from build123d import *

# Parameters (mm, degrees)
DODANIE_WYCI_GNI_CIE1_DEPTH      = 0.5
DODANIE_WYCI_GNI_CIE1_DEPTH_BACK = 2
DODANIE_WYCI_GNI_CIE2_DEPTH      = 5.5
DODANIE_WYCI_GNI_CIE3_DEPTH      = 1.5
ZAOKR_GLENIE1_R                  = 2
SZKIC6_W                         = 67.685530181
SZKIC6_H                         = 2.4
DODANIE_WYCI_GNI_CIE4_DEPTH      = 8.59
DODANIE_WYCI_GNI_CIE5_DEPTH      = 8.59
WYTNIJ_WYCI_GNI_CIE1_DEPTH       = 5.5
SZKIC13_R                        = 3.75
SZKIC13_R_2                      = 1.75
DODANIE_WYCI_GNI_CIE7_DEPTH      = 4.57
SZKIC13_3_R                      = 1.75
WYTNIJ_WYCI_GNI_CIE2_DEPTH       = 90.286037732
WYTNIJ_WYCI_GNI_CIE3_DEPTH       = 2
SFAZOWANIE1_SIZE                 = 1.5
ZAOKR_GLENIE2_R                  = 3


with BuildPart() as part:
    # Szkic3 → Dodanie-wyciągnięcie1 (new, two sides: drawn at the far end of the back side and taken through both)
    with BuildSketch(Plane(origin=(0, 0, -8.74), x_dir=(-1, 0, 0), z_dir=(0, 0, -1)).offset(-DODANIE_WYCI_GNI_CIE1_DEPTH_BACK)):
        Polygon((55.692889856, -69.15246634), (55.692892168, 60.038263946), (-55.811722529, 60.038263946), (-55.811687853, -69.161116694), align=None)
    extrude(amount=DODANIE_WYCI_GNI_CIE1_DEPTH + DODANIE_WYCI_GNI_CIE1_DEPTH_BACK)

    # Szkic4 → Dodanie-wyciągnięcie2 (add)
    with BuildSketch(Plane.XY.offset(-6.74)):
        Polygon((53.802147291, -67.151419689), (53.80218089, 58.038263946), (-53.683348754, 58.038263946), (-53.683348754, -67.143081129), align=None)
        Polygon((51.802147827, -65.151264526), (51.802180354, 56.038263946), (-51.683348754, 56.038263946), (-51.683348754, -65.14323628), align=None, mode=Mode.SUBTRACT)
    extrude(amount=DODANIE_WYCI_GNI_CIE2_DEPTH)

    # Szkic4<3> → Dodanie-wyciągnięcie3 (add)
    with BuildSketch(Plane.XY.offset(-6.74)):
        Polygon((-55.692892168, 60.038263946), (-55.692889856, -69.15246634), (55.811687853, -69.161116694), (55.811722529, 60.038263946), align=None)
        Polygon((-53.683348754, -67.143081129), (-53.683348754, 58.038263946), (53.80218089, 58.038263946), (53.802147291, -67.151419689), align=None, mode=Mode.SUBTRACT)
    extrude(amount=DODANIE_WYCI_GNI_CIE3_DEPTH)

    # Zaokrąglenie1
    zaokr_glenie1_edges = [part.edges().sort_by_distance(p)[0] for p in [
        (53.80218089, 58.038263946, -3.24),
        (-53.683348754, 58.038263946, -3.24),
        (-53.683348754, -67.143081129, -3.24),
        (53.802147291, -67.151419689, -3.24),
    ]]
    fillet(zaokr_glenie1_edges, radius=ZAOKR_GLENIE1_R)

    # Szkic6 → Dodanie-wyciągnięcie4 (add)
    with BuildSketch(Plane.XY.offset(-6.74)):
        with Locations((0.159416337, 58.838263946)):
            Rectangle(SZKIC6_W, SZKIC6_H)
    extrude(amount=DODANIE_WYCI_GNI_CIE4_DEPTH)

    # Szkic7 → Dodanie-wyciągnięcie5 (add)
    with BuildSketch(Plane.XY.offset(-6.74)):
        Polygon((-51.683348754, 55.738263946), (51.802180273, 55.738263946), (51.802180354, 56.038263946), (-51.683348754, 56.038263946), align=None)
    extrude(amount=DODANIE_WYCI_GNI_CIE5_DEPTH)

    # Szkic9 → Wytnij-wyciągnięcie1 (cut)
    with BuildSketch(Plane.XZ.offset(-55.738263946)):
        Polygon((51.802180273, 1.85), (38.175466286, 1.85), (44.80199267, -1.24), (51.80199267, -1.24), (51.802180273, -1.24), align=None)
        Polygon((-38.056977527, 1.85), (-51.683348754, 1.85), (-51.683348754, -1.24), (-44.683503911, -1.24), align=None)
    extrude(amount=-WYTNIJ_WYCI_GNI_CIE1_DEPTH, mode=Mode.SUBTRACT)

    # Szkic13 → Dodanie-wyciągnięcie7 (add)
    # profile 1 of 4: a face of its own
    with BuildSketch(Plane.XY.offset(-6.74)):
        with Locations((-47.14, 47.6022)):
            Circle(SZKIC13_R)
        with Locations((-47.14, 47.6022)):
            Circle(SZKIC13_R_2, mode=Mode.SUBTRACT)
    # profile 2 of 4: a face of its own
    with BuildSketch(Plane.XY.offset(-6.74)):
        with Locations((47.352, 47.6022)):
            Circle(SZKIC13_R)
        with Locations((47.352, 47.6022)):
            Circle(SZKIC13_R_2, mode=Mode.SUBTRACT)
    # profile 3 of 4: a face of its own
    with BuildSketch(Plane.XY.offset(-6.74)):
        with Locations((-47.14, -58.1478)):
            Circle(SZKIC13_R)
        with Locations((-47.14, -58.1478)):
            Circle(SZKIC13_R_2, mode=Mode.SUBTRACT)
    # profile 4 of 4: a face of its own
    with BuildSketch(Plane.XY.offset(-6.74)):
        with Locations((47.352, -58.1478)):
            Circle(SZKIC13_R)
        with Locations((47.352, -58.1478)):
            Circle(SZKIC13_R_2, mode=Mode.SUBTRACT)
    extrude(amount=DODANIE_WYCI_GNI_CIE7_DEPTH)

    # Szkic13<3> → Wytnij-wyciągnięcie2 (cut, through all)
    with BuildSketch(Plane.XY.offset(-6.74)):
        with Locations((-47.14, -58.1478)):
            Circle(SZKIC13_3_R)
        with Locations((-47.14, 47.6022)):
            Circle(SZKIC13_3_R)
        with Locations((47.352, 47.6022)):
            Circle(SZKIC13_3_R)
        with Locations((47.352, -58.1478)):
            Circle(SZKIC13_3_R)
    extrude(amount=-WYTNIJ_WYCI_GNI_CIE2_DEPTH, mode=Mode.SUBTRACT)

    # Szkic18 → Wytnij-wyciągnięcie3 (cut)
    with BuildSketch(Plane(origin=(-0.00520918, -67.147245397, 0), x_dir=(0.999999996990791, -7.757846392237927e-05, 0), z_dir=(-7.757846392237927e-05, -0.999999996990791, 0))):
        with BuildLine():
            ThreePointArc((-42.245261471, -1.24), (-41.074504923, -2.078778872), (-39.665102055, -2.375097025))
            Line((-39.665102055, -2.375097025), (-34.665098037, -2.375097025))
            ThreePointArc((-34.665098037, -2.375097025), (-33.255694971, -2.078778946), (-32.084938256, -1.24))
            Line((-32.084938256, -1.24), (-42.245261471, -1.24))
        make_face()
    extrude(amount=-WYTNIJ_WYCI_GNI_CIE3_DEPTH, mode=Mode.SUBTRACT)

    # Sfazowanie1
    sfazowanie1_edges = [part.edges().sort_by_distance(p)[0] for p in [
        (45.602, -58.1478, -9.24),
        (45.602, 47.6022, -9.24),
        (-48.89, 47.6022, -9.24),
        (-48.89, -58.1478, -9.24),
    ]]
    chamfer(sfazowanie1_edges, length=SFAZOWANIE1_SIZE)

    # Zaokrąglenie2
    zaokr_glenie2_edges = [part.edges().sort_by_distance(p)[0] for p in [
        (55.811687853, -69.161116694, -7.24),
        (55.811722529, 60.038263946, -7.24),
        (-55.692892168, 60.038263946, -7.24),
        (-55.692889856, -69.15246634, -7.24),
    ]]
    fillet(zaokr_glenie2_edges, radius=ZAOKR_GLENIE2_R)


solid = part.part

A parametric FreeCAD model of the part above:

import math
import FreeCAD as App
import Part
import Sketcher
Q = App.Units.Quantity


def edges_at(feature, points):
    """Names of the edges that pass closest to the given points."""
    edges = feature.Shape.Edges
    near = lambda p: min(range(len(edges)), key=lambda i: edges[i].distToShape(Part.Vertex(*p))[0])
    return sorted({f"Edge{near(p) + 1}" for p in points})

doc = App.newDocument("Part")
body = doc.addObject("PartDesign::Body", "Body")

sketch1 = body.newObject("Sketcher::SketchObject", "Sketch")
sketch1.AttachmentSupport = (doc.getObject("XY_Plane"), [""])
sketch1.MapMode = "FlatFace"
sketch1.AttachmentOffset = App.Placement(App.Vector(0, 0, -8.74), App.Rotation())
sketch1.addGeometry([
    Part.LineSegment(App.Vector(-55.69289, -69.152466, 0), App.Vector(-55.692892, 60.038264, 0)),
    Part.LineSegment(App.Vector(-55.692892, 60.038264, 0), App.Vector(55.811723, 60.038264, 0)),
    Part.LineSegment(App.Vector(55.811723, 60.038264, 0), App.Vector(55.811688, -69.161117, 0)),
    Part.LineSegment(App.Vector(55.811688, -69.161117, 0), App.Vector(-55.69289, -69.152466, 0)),
], False)
sketch1.addConstraint([
    Sketcher.Constraint("Coincident", 0, 2, 1, 1),
    Sketcher.Constraint("Coincident", 1, 2, 2, 1),
    Sketcher.Constraint("Coincident", 2, 2, 3, 1),
    Sketcher.Constraint("Coincident", 3, 2, 0, 1),
    Sketcher.Constraint("Horizontal", 1),
    Sketcher.Constraint("Parallel", 0, 2),
    Sketcher.Constraint("Angle", 0, Q("90.000001 deg")),
    Sketcher.Constraint("Distance", 0, 129.19073),
    Sketcher.Constraint("Distance", 2, 129.199381),
    Sketcher.Constraint("Distance", 3, 111.504578),
    Sketcher.Constraint("DistanceX", 3, 2, -1, 1, 55.69289),
    Sketcher.Constraint("DistanceY", -1, 1, 0, 2, 60.038264),
])
pad1 = body.newObject("PartDesign::Pad", "Pad")
pad1.Profile = sketch1
pad1.Type = "TwoLengths"
pad1.Length = 0.5
pad1.Length2 = 2
pad1.Reversed = True

sketch2 = body.newObject("Sketcher::SketchObject", "Sketch001")
sketch2.AttachmentSupport = (doc.getObject("XY_Plane"), [""])
sketch2.MapMode = "FlatFace"
sketch2.AttachmentOffset = App.Placement(App.Vector(0, 0, -6.74), App.Rotation())
sketch2.addGeometry([
    Part.LineSegment(App.Vector(54, -67, 0), App.Vector(54, 58, 0)),
    Part.LineSegment(App.Vector(54, 58, 0), App.Vector(-54, 58, 0)),
    Part.LineSegment(App.Vector(-54, 58, 0), App.Vector(-54, -67, 0)),
    Part.LineSegment(App.Vector(-54, -67, 0), App.Vector(54, -67, 0)),
    Part.LineSegment(App.Vector(52, 56, 0), App.Vector(52, -65, 0)),
    Part.LineSegment(App.Vector(52, -65, 0), App.Vector(-52, -65, 0)),
    Part.LineSegment(App.Vector(-52, -65, 0), App.Vector(-52, 56, 0)),
    Part.LineSegment(App.Vector(-52, 56, 0), App.Vector(52, 56, 0)),
], False)
sketch2.addConstraint([
    Sketcher.Constraint("Coincident", 0, 2, 1, 1),
    Sketcher.Constraint("Coincident", 1, 2, 2, 1),
    Sketcher.Constraint("Coincident", 2, 2, 3, 1),
    Sketcher.Constraint("Coincident", 3, 2, 0, 1),
    Sketcher.Constraint("Coincident", 4, 2, 5, 1),
    Sketcher.Constraint("Coincident", 5, 2, 6, 1),
    Sketcher.Constraint("Coincident", 6, 2, 7, 1),
    Sketcher.Constraint("Coincident", 7, 2, 4, 1),
    Sketcher.Constraint("Horizontal", 1),
    Sketcher.Constraint("Vertical", 2),
    Sketcher.Constraint("Vertical", 6),
    Sketcher.Constraint("Horizontal", 7),
    Sketcher.Constraint("Parallel", 0, 4),
    Sketcher.Constraint("Parallel", 3, 5),
    Sketcher.Constraint("Angle", 0, Q("89.999985 deg")),
    Sketcher.Constraint("DistanceX", 4, 2, 3, 2, 1.999999),
    Sketcher.Constraint("DistanceX", 2, 2, 5, 2, 2.0),
    Sketcher.Constraint("DistanceY", 6, 2, 1, 2, 2.0),
    Sketcher.Constraint("DistanceY", 6, 1, 6, 2, 121.1815),
    Sketcher.Constraint("DistanceX", 1, 2, 1, 1, 107.48553),
    Sketcher.Constraint("Distance", 4, 121.189528),
    Sketcher.Constraint("DistanceY", 2, 2, 2, 1, 125.181345),
    Sketcher.Constraint("DistanceX", -1, 1, 0, 2, 53.802181),
    Sketcher.Constraint("DistanceY", 2, 2, -1, 1, 67.143081),
])
pad2 = body.newObject("PartDesign::Pad", "Pad001")
pad2.Profile = sketch2
pad2.Length = 5.5

sketch3 = body.newObject("Sketcher::SketchObject", "Sketch002")
sketch3.AttachmentSupport = (doc.getObject("XY_Plane"), [""])
sketch3.MapMode = "FlatFace"
sketch3.AttachmentOffset = App.Placement(App.Vector(0, 0, -6.74), App.Rotation())
sketch3.addGeometry([
    Part.LineSegment(App.Vector(-55.692892, 60.038264, 0), App.Vector(-55.69289, -69.152466, 0)),
    Part.LineSegment(App.Vector(-55.69289, -69.152466, 0), App.Vector(55.811688, -69.161117, 0)),
    Part.LineSegment(App.Vector(55.811688, -69.161117, 0), App.Vector(55.811723, 60.038264, 0)),
    Part.LineSegment(App.Vector(55.811723, 60.038264, 0), App.Vector(-55.692892, 60.038264, 0)),
    Part.LineSegment(App.Vector(53.802147, -67.15142, 0), App.Vector(-53.683349, -67.143081, 0)),
    Part.LineSegment(App.Vector(-53.683349, -67.143081, 0), App.Vector(-53.683349, 58.038264, 0)),
    Part.LineSegment(App.Vector(-53.683349, 58.038264, 0), App.Vector(53.802181, 58.038264, 0)),
    Part.LineSegment(App.Vector(53.802181, 58.038264, 0), App.Vector(53.802147, -67.15142, 0)),
], False)
sketch3.addConstraint([
    Sketcher.Constraint("Coincident", 0, 2, 1, 1),
    Sketcher.Constraint("Coincident", 1, 2, 2, 1),
    Sketcher.Constraint("Coincident", 2, 2, 3, 1),
    Sketcher.Constraint("Coincident", 3, 2, 0, 1),
    Sketcher.Constraint("Coincident", 4, 2, 5, 1),
    Sketcher.Constraint("Coincident", 5, 2, 6, 1),
    Sketcher.Constraint("Coincident", 6, 2, 7, 1),
    Sketcher.Constraint("Coincident", 7, 2, 4, 1),
    Sketcher.Constraint("Horizontal", 3),
    Sketcher.Constraint("Vertical", 5),
    Sketcher.Constraint("Horizontal", 6),
    Sketcher.Constraint("DistanceY", 5, 2, 3, 2, 2.0),
    Sketcher.Constraint("DistanceX", 6, 1, 6, 2, 107.48553),
    Sketcher.Constraint("Distance", 0, 129.19073),
    Sketcher.Constraint("Distance", 1, 111.504578),
    Sketcher.Constraint("Distance", 2, 129.199381),
    Sketcher.Constraint("DistanceX", 3, 2, 3, 1, 111.504615),
    Sketcher.Constraint("DistanceY", 5, 1, 5, 2, 125.181345),
    Sketcher.Constraint("DistanceX", 0, 2, -1, 1, 55.69289),
    Sketcher.Constraint("DistanceX", 4, 2, -1, 1, 53.683349),
    Sketcher.Constraint("DistanceY", 4, 2, -1, 1, 67.143081),
    Sketcher.Constraint("DistanceY", 7, 2, -1, 1, 67.15142),
    Sketcher.Constraint("DistanceX", 3, 2, 1, 2, 111.50458),
    Sketcher.Constraint("DistanceX", 7, 2, 1, 2, 2.009541),
])
pad3 = body.newObject("PartDesign::Pad", "Pad002")
pad3.Profile = sketch3
pad3.Length = 1.5
doc.recompute()

fillet = body.newObject("PartDesign::Fillet", "Fillet")
fillet.Base = (pad3, edges_at(pad3, [
    (53.802, 58.038, -3.24),
    (-53.683, 58.038, -3.24),
    (-53.683, -67.143, -3.24),
    (53.802, -67.151, -3.24),
]))
fillet.Radius = 2

sketch4 = body.newObject("Sketcher::SketchObject", "Sketch003")
sketch4.AttachmentSupport = (doc.getObject("XY_Plane"), [""])
sketch4.MapMode = "FlatFace"
sketch4.AttachmentOffset = App.Placement(App.Vector(0, 0, -6.74), App.Rotation())
sketch4.addGeometry([
    Part.LineSegment(App.Vector(-33.7, 60, 0), App.Vector(-33.7, 57.6, 0)),
    Part.LineSegment(App.Vector(-33.7, 57.6, 0), App.Vector(34, 57.6, 0)),
    Part.LineSegment(App.Vector(34, 57.6, 0), App.Vector(34, 60, 0)),
    Part.LineSegment(App.Vector(34, 60, 0), App.Vector(-33.7, 60, 0)),
], False)
sketch4.addConstraint([
    Sketcher.Constraint("Coincident", 0, 2, 1, 1),
    Sketcher.Constraint("Coincident", 1, 2, 2, 1),
    Sketcher.Constraint("Coincident", 2, 2, 3, 1),
    Sketcher.Constraint("Coincident", 3, 2, 0, 1),
    Sketcher.Constraint("Vertical", 0),
    Sketcher.Constraint("Horizontal", 1),
    Sketcher.Constraint("Vertical", 2),
    Sketcher.Constraint("Horizontal", 3),
    Sketcher.Constraint("DistanceY", 0, 2, 0, 1, 2.4),
    Sketcher.Constraint("DistanceX", 1, 1, 1, 2, 67.68553),
    Sketcher.Constraint("DistanceX", 0, 2, -1, 1, 33.683349),
    Sketcher.Constraint("DistanceY", -1, 1, 0, 2, 57.638264),
])
pad4 = body.newObject("PartDesign::Pad", "Pad003")
pad4.Profile = sketch4
pad4.Length = 8.59

sketch5 = body.newObject("Sketcher::SketchObject", "Sketch004")
sketch5.AttachmentSupport = (doc.getObject("XY_Plane"), [""])
sketch5.MapMode = "FlatFace"
sketch5.AttachmentOffset = App.Placement(App.Vector(0, 0, -6.74), App.Rotation())
sketch5.addGeometry([
    Part.LineSegment(App.Vector(-51.68, 55.74, 0), App.Vector(51.8, 55.74, 0)),
    Part.LineSegment(App.Vector(51.8, 55.74, 0), App.Vector(51.8, 56.04, 0)),
    Part.LineSegment(App.Vector(51.8, 56.04, 0), App.Vector(-51.68, 56.04, 0)),
    Part.LineSegment(App.Vector(-51.68, 56.04, 0), App.Vector(-51.68, 55.74, 0)),
], False)
sketch5.addConstraint([
    Sketcher.Constraint("Coincident", 0, 2, 1, 1),
    Sketcher.Constraint("Coincident", 1, 2, 2, 1),
    Sketcher.Constraint("Coincident", 2, 2, 3, 1),
    Sketcher.Constraint("Coincident", 3, 2, 0, 1),
    Sketcher.Constraint("Horizontal", 0),
    Sketcher.Constraint("Vertical", 1),
    Sketcher.Constraint("Horizontal", 2),
    Sketcher.Constraint("Vertical", 3),
    Sketcher.Constraint("DistanceY", 1, 1, 1, 2, 0.3),
    Sketcher.Constraint("DistanceX", 0, 1, 0, 2, 103.485529),
    Sketcher.Constraint("DistanceX", -1, 1, 0, 2, 51.80218),
    Sketcher.Constraint("DistanceY", -1, 1, 0, 2, 55.738264),
])
pad5 = body.newObject("PartDesign::Pad", "Pad004")
pad5.Profile = sketch5
pad5.Length = 8.59

sketch6 = body.newObject("Sketcher::SketchObject", "Sketch005")
sketch6.AttachmentSupport = (doc.getObject("XZ_Plane"), [""])
sketch6.MapMode = "FlatFace"
sketch6.AttachmentOffset = App.Placement(App.Vector(0, 0, -55.738264), App.Rotation())
sketch6.addGeometry([
    Part.LineSegment(App.Vector(51.8, 1.9, 0), App.Vector(38.2, 1.9, 0)),
    Part.LineSegment(App.Vector(38.2, 1.9, 0), App.Vector(44.8, -1.2, 0)),
    Part.LineSegment(App.Vector(44.8, -1.2, 0), App.Vector(51.8, -1.2, 0)),
    Part.LineSegment(App.Vector(51.8, -1.2, 0), App.Vector(51.8, 1.9, 0)),
    Part.LineSegment(App.Vector(-38.1, 1.9, 0), App.Vector(-51.7, 1.9, 0)),
    Part.LineSegment(App.Vector(-51.7, 1.9, 0), App.Vector(-51.7, -1.2, 0)),
    Part.LineSegment(App.Vector(-51.7, -1.2, 0), App.Vector(-44.7, -1.2, 0)),
    Part.LineSegment(App.Vector(-44.7, -1.2, 0), App.Vector(-38.1, 1.9, 0)),
], False)
sketch6.addConstraint([
    Sketcher.Constraint("Coincident", 0, 2, 1, 1),
    Sketcher.Constraint("Coincident", 1, 2, 2, 1),
    Sketcher.Constraint("Coincident", 2, 2, 3, 1),
    Sketcher.Constraint("Coincident", 3, 2, 0, 1),
    Sketcher.Constraint("Coincident", 4, 2, 5, 1),
    Sketcher.Constraint("Coincident", 5, 2, 6, 1),
    Sketcher.Constraint("Coincident", 6, 2, 7, 1),
    Sketcher.Constraint("Coincident", 7, 2, 4, 1),
    Sketcher.Constraint("Horizontal", 0),
    Sketcher.Constraint("Horizontal", 2),
    Sketcher.Constraint("Vertical", 3),
    Sketcher.Constraint("Horizontal", 4),
    Sketcher.Constraint("Vertical", 5),
    Sketcher.Constraint("Horizontal", 6),
    Sketcher.Constraint("Horizontal", 3, 2, 4, 2),
    Sketcher.Constraint("Horizontal", 2, 2, 5, 2),
    Sketcher.Constraint("Equal", 1, 7),
    Sketcher.Constraint("Angle", 1, Q("-25 deg")),
    Sketcher.Constraint("DistanceY", 3, 1, 3, 2, 3.09),
    Sketcher.Constraint("DistanceY", -1, 1, 0, 2, 1.85),
    Sketcher.Constraint("DistanceX", 4, 2, 4, 1, 13.626371),
    Sketcher.Constraint("DistanceX", 0, 2, 0, 1, 13.626714),
    Sketcher.Constraint("DistanceX", -1, 1, 2, 2, 51.80218),
    Sketcher.Constraint("DistanceX", 4, 2, -1, 1, 51.683349),
])
pocket1 = body.newObject("PartDesign::Pocket", "Pocket")
pocket1.Profile = sketch6
pocket1.Length = 5.5

sketch7 = body.newObject("Sketcher::SketchObject", "Sketch006")
sketch7.AttachmentSupport = (doc.getObject("XY_Plane"), [""])
sketch7.MapMode = "FlatFace"
sketch7.AttachmentOffset = App.Placement(App.Vector(0, 0, -6.74), App.Rotation())
sketch7.addGeometry([
    Part.Circle(App.Vector(-47.1, 47.6, 0), App.Vector(0, 0, 1), 3.8),
    Part.Circle(App.Vector(-47.1, 47.6, 0), App.Vector(0, 0, 1), 1.8),
    Part.Circle(App.Vector(47.4, 47.6, 0), App.Vector(0, 0, 1), 3.8),
    Part.Circle(App.Vector(47.4, 47.6, 0), App.Vector(0, 0, 1), 1.8),
    Part.Circle(App.Vector(-47.1, -58.1, 0), App.Vector(0, 0, 1), 3.8),
    Part.Circle(App.Vector(-47.1, -58.1, 0), App.Vector(0, 0, 1), 1.8),
    Part.Circle(App.Vector(47.4, -58.1, 0), App.Vector(0, 0, 1), 3.8),
    Part.Circle(App.Vector(47.4, -58.1, 0), App.Vector(0, 0, 1), 1.8),
], False)
sketch7.addConstraint([
    Sketcher.Constraint("Coincident", 1, 3, 0, 3),
    Sketcher.Constraint("Coincident", 3, 3, 2, 3),
    Sketcher.Constraint("Coincident", 5, 3, 4, 3),
    Sketcher.Constraint("Coincident", 7, 3, 6, 3),
    Sketcher.Constraint("Equal", 0, 2),
    Sketcher.Constraint("Equal", 1, 3),
    Sketcher.Constraint("Equal", 2, 4),
    Sketcher.Constraint("Equal", 3, 5),
    Sketcher.Constraint("Equal", 4, 6),
    Sketcher.Constraint("Equal", 5, 7),
    Sketcher.Constraint("Horizontal", 1, 3, 2, 3),
    Sketcher.Constraint("Horizontal", 5, 3, 6, 3),
    Sketcher.Constraint("Vertical", 1, 3, 4, 3),
    Sketcher.Constraint("Vertical", 3, 3, 6, 3),
    Sketcher.Constraint("Diameter", 0, 7.5),
    Sketcher.Constraint("Diameter", 1, 3.5),
    Sketcher.Constraint("DistanceX", 0, 3, -1, 1, 47.14),
    Sketcher.Constraint("DistanceY", 4, 3, 0, 3, 105.75),
    Sketcher.Constraint("DistanceX", -1, 1, 2, 3, 47.352),
    Sketcher.Constraint("DistanceY", -1, 1, 0, 3, 47.6022),
])
pad6 = body.newObject("PartDesign::Pad", "Pad005")
pad6.Profile = sketch7
pad6.Length = 4.57

sketch8 = body.newObject("Sketcher::SketchObject", "Sketch007")
sketch8.AttachmentSupport = (doc.getObject("XY_Plane"), [""])
sketch8.MapMode = "FlatFace"
sketch8.AttachmentOffset = App.Placement(App.Vector(0, 0, -6.74), App.Rotation())
sketch8.addGeometry([
    Part.Circle(App.Vector(-47.1, -58.1, 0), App.Vector(0, 0, 1), 1.8),
    Part.Circle(App.Vector(-47.1, 47.6, 0), App.Vector(0, 0, 1), 1.8),
    Part.Circle(App.Vector(47.4, 47.6, 0), App.Vector(0, 0, 1), 1.8),
    Part.Circle(App.Vector(47.4, -58.1, 0), App.Vector(0, 0, 1), 1.8),
], False)
sketch8.addConstraint([
    Sketcher.Constraint("Equal", 0, 1),
    Sketcher.Constraint("Equal", 1, 2),
    Sketcher.Constraint("Equal", 2, 3),
    Sketcher.Constraint("Horizontal", 1, 3, 2, 3),
    Sketcher.Constraint("Horizontal", 0, 3, 3, 3),
    Sketcher.Constraint("Vertical", 0, 3, 1, 3),
    Sketcher.Constraint("Vertical", 2, 3, 3, 3),
    Sketcher.Constraint("Diameter", 0, 3.5),
    Sketcher.Constraint("DistanceX", 0, 3, -1, 1, 47.14),
    Sketcher.Constraint("DistanceY", 0, 3, 1, 3, 105.75),
    Sketcher.Constraint("DistanceX", -1, 1, 2, 3, 47.352),
    Sketcher.Constraint("DistanceY", 0, 3, -1, 1, 58.1478),
])
pocket2 = body.newObject("PartDesign::Pocket", "Pocket001")
pocket2.Profile = sketch8
pocket2.Type = "ThroughAll"

sketch9 = body.newObject("Sketcher::SketchObject", "Sketch008")
sketch9.Placement = App.Placement(App.Vector(-0.005209, -67.147245, 0), App.Rotation(App.Vector(0.999999997, -0.000077578, 0), App.Vector(0, 0, 1), App.Vector(-0.000077578, -0.999999997, 0), "ZXY"))
sketch9.addGeometry([
    Part.ArcOfCircle(Part.Circle(App.Vector(-39.7, 1.1, 0), App.Vector(0, 0, 1), 3.5), math.radians(-137), math.radians(-90)),
    Part.LineSegment(App.Vector(-39.7, -2.4, 0), App.Vector(-34.7, -2.4, 0)),
    Part.ArcOfCircle(Part.Circle(App.Vector(-34.7, 1.1, 0), App.Vector(0, 0, 1), 3.5), math.radians(-90), math.radians(-43)),
    Part.LineSegment(App.Vector(-32.1, -1.2, 0), App.Vector(-42.2, -1.2, 0)),
], False)
sketch9.addConstraint([
    Sketcher.Constraint("Tangent", 0, 2, 1, 1),
    Sketcher.Constraint("Tangent", 1, 2, 2, 1),
    Sketcher.Constraint("Coincident", 2, 2, 3, 1),
    Sketcher.Constraint("Coincident", 3, 2, 0, 1),
    Sketcher.Constraint("Horizontal", 1),
    Sketcher.Constraint("Horizontal", 3),
    Sketcher.Constraint("Equal", 0, 2),
    Sketcher.Constraint("Radius", 0, 3.5),
    Sketcher.Constraint("DistanceX", 0, 3, 2, 3, 5.0),
    Sketcher.Constraint("DistanceY", 2, 2, -1, 1, 1.24),
    Sketcher.Constraint("DistanceX", 0, 3, -1, 1, 39.6651),
    Sketcher.Constraint("DistanceX", 3, 2, 3, 1, 10.160323),
])
pocket3 = body.newObject("PartDesign::Pocket", "Pocket002")
pocket3.Profile = sketch9
pocket3.Length = 2
doc.recompute()

chamfer = body.newObject("PartDesign::Chamfer", "Chamfer")
chamfer.Base = (pocket3, edges_at(pocket3, [
    (45.602, -58.148, -9.24),
    (45.602, 47.602, -9.24),
    (-48.89, 47.602, -9.24),
    (-48.89, -58.148, -9.24),
]))
chamfer.Size = 1.5
doc.recompute()

fillet2 = body.newObject("PartDesign::Fillet", "Fillet001")
fillet2.Base = (chamfer, edges_at(chamfer, [
    (55.812, -69.161, -7.24),
    (55.812, 60.038, -7.24),
    (-55.693, 60.038, -7.24),
    (-55.693, -69.152, -7.24),
]))
fillet2.Radius = 3

doc.recompute()
